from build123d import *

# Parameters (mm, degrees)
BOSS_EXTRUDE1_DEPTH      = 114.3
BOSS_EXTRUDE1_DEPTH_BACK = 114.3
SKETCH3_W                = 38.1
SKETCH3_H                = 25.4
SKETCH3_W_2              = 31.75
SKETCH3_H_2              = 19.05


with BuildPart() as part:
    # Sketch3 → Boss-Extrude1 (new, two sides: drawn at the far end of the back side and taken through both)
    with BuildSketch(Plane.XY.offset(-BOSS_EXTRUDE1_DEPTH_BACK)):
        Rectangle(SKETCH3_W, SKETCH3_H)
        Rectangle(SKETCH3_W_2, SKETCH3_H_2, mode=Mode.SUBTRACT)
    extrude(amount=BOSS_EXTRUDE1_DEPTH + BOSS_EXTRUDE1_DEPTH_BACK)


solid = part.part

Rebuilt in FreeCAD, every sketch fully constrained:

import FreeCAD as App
import Part
import Sketcher
Q = App.Units.Quantity


def add_polygon(sketch, points):
    """Adds a closed chain of lines whose ends are joined by coincident constraints."""
    first, n = sketch.GeometryCount, len(points)
    for a, b in zip(points, points[1:] + points[:1]):
        sketch.addGeometry(Part.LineSegment(App.Vector(*a, 0), App.Vector(*b, 0)), False)
    for i in range(n):
        sketch.addConstraint(Sketcher.Constraint("Coincident", first + i, 2, first + (i + 1) % n, 1))

doc = App.newDocument("Part")
body = doc.addObject("PartDesign::Body", "Body")

# Sketch on XY plane
sketch1 = doc.addObject("Sketcher::SketchObject", "Sketch")
body.addObject(sketch1)
sketch1.AttachmentSupport = (doc.XY_Plane, [""])
sketch1.MapMode = "FlatFace"
add_polygon(sketch1, [(-19, 13), (-19, -13), (19, -13), (19, 13)])  # lines 0-3
add_polygon(sketch1, [(16, -10), (-16, -10), (-16, 10), (16, 10)])  # lines 4-7
sketch1.addConstraint([
    Sketcher.Constraint("Vertical", 0),
    Sketcher.Constraint("Horizontal", 1),
    Sketcher.Constraint("Vertical", 2),
    Sketcher.Constraint("Horizontal", 3),
    Sketcher.Constraint("Horizontal", 4),
    Sketcher.Constraint("Vertical", 5),
    Sketcher.Constraint("Horizontal", 6),
    Sketcher.Constraint("Vertical", 7),
    Sketcher.Constraint("Symmetric", 0, 2, 2, 2, -1, 1),
    Sketcher.Constraint("Symmetric", 4, 2, 6, 2, -1, 1),
    Sketcher.Constraint("DistanceY", 0, 2, 0, 1, Q("1 in")),
    Sketcher.Constraint("DistanceX", 1, 1, 1, 2, Q("1.5 in")),
    Sketcher.Constraint("DistanceX", 4, 2, 4, 1, Q("1.25 in")),
    Sketcher.Constraint("DistanceY", 5, 1, 5, 2, Q("0.75 in")),
])
pad1 = doc.addObject("PartDesign::Pad", "Pad")
body.addObject(pad1)
pad1.Profile = sketch1
pad1.Type = "TwoLengths"
pad1.Length = Q("4.5 in")
pad1.Length2 = Q("4.5 in")

doc.recompute()
